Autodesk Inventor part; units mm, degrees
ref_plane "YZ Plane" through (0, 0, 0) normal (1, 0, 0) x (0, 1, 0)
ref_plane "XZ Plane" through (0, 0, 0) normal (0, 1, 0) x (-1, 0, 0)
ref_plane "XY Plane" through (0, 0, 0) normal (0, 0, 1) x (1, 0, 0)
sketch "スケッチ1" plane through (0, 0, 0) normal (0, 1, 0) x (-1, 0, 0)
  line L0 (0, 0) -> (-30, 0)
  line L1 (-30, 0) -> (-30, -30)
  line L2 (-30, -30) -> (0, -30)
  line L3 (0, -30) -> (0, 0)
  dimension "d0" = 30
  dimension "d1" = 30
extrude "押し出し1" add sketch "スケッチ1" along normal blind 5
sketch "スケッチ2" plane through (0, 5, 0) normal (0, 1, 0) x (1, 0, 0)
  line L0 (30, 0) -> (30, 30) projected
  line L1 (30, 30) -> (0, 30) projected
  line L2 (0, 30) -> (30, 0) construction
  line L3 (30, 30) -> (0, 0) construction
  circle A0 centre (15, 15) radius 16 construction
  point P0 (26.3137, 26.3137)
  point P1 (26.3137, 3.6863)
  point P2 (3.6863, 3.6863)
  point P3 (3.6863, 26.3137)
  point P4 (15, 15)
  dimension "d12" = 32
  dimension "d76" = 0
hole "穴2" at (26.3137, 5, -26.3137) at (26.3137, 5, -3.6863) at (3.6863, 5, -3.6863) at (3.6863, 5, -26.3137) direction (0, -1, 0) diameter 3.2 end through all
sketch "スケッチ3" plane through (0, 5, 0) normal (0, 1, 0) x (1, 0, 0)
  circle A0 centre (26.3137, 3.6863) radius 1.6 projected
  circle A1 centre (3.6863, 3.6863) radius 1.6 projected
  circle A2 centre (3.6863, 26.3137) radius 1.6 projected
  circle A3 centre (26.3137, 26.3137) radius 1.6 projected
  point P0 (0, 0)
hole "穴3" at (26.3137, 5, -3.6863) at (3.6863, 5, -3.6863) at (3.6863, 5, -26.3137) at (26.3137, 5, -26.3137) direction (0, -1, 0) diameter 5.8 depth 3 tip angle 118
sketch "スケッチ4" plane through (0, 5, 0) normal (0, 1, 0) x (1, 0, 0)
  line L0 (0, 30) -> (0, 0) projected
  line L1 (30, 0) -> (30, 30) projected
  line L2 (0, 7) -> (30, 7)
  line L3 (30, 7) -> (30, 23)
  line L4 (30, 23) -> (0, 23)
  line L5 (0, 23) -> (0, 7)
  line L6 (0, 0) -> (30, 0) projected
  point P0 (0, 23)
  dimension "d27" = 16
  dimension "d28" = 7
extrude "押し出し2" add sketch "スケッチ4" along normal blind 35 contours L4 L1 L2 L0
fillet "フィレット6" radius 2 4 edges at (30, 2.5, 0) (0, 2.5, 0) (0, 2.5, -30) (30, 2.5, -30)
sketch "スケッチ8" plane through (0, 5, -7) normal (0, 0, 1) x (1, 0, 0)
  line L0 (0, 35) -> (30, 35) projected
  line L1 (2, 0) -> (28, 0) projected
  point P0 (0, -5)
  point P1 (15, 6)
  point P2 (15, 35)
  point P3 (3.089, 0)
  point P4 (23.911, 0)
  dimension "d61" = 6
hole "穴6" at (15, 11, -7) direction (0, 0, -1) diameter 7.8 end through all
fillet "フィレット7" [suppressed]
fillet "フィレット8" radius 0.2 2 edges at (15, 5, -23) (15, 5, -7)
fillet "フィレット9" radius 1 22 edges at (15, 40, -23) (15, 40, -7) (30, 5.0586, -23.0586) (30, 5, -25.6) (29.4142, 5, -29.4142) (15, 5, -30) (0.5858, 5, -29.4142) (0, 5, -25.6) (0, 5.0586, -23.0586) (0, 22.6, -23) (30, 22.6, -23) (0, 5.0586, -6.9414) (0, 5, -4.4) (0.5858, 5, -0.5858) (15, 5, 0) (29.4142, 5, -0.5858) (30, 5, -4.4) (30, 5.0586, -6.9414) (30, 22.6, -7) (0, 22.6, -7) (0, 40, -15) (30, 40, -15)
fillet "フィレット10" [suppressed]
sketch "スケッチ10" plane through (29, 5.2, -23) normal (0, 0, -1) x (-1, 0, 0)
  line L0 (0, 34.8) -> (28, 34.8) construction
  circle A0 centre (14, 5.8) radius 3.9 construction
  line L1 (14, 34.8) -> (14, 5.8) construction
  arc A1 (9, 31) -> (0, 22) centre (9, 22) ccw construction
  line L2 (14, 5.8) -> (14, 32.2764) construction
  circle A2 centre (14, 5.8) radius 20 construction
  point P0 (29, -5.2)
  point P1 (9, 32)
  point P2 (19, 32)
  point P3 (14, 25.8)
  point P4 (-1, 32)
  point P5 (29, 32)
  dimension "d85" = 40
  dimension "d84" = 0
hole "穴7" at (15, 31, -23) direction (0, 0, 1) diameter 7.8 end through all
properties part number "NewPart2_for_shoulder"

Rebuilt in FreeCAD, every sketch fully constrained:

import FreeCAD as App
import Part
import Sketcher
from FreeCAD import Vector


def edges_at(feature, points):
    """Names of the edges that pass closest to the given points."""
    edges = feature.Shape.Edges
    near = lambda p: min(range(len(edges)), key=lambda i: edges[i].distToShape(Part.Vertex(*p))[0])
    return sorted({f"Edge{near(p) + 1}" for p in points})

doc = App.newDocument("Part")
body = doc.addObject("PartDesign::Body", "Body")

# Sketch on XZ plane
sketch1 = body.newObject("Sketcher::SketchObject", "Sketch")
sketch1.AttachmentSupport = (doc.getObject("XZ_Plane"), [""])
sketch1.MapMode = "FlatFace"
sketch1.addGeometry([
    Part.LineSegment(Vector(0, -30, 0), Vector(0, 0, 0)),
    Part.LineSegment(Vector(0, 0, 0), Vector(30, 0, 0)),
    Part.LineSegment(Vector(30, 0, 0), Vector(30, -30, 0)),
    Part.LineSegment(Vector(30, -30, 0), Vector(0, -30, 0)),
], False)
sketch1.addConstraint([
    Sketcher.Constraint("Coincident", 0, 2, 1, 1),
    Sketcher.Constraint("Coincident", 1, 2, 2, 1),
    Sketcher.Constraint("Coincident", 2, 2, 3, 1),
    Sketcher.Constraint("Coincident", 3, 2, 0, 1),
    Sketcher.Constraint("Vertical", 0),
    Sketcher.Constraint("Horizontal", 1),
    Sketcher.Constraint("Vertical", 2),
    Sketcher.Constraint("Horizontal", 3),
    Sketcher.Constraint("Coincident", 0, 2, -1, 1),
    Sketcher.Constraint("Equal", 3, 0),
    Sketcher.Constraint("DistanceX", 1, 1, 1, 2, 30.0),
])
pad1 = body.newObject("PartDesign::Pad", "Pad")
pad1.Profile = sketch1
pad1.Length = 5
pad1.Reversed = True

# Sketch on XZ plane
sketch2 = body.newObject("Sketcher::SketchObject", "Sketch001")
sketch2.AttachmentSupport = (doc.getObject("XZ_Plane"), [""])
sketch2.MapMode = "FlatFace"
sketch2.AttachmentOffset = App.Placement(Vector(0, 0, -5), App.Rotation())
sketch2.addGeometry([
    Part.Circle(Vector(26.3137, -26.3137, 0), Vector(0, 0, 1), 1.6),
    Part.Circle(Vector(26.3137, -3.6863, 0), Vector(0, 0, 1), 1.6),
    Part.Circle(Vector(3.6863, -3.6863, 0), Vector(0, 0, 1), 1.6),
    Part.Circle(Vector(3.6863, -26.3137, 0), Vector(0, 0, 1), 1.6),
], False)
sketch2.addConstraint([
    Sketcher.Constraint("Equal", 0, 1),
    Sketcher.Constraint("Equal", 1, 2),
    Sketcher.Constraint("Equal", 2, 3),
    Sketcher.Constraint("Horizontal", 1, 3, 2, 3),
    Sketcher.Constraint("Horizontal", 0, 3, 3, 3),
    Sketcher.Constraint("Vertical", 0, 3, 1, 3),
    Sketcher.Constraint("Vertical", 2, 3, 3, 3),
    Sketcher.Constraint("Diameter", 0, 3.2),
    Sketcher.Constraint("DistanceX", -1, 1, 0, 3, 26.3137),
    Sketcher.Constraint("DistanceY", 0, 3, -1, 1, 26.3137),
    Sketcher.Constraint("DistanceY", 1, 3, -1, 1, 3.6863),
    Sketcher.Constraint("DistanceX", -1, 1, 2, 3, 3.6863),
])
doc.recompute()
hole = body.newObject("PartDesign::Hole", "Hole")
hole.Profile = sketch2
hole.ThreadType = "None"
hole.Diameter = 3.2
hole.DepthType = "ThroughAll"
hole.Reversed = True

# Sketch on XZ plane
sketch3 = body.newObject("Sketcher::SketchObject", "Sketch002")
sketch3.AttachmentSupport = (doc.getObject("XZ_Plane"), [""])
sketch3.MapMode = "FlatFace"
sketch3.AttachmentOffset = App.Placement(Vector(0, 0, -5), App.Rotation())
sketch3.addGeometry([
    Part.Circle(Vector(26.3137, -3.6863, 0), Vector(0, 0, 1), 2.9),
    Part.Circle(Vector(3.6863, -3.6863, 0), Vector(0, 0, 1), 2.9),
    Part.Circle(Vector(3.6863, -26.3137, 0), Vector(0, 0, 1), 2.9),
    Part.Circle(Vector(26.3137, -26.3137, 0), Vector(0, 0, 1), 2.9),
], False)
sketch3.addConstraint([
    Sketcher.Constraint("Equal", 0, 1),
    Sketcher.Constraint("Equal", 1, 2),
    Sketcher.Constraint("Equal", 2, 3),
    Sketcher.Constraint("Horizontal", 0, 3, 1, 3),
    Sketcher.Constraint("Horizontal", 2, 3, 3, 3),
    Sketcher.Constraint("Vertical", 1, 3, 2, 3),
    Sketcher.Constraint("Vertical", 0, 3, 3, 3),
    Sketcher.Constraint("Diameter", 0, 5.8),
    Sketcher.Constraint("DistanceX", -1, 1, 0, 3, 26.3137),
    Sketcher.Constraint("DistanceY", 0, 3, -1, 1, 3.6863),
    Sketcher.Constraint("DistanceX", -1, 1, 1, 3, 3.6863),
    Sketcher.Constraint("DistanceY", 2, 3, -1, 1, 26.3137),
])
doc.recompute()
hole2 = body.newObject("PartDesign::Hole", "Hole001")
hole2.Profile = sketch3
hole2.ThreadType = "None"
hole2.Diameter = 5.8
hole2.DepthType = "Dimension"
hole2.Depth = 3
hole2.DrillPoint = "Angled"
hole2.DrillPointAngle = 118
hole2.Reversed = True

# Sketch on XZ plane
sketch4 = body.newObject("Sketcher::SketchObject", "Sketch003")
sketch4.AttachmentSupport = (doc.getObject("XZ_Plane"), [""])
sketch4.MapMode = "FlatFace"
sketch4.AttachmentOffset = App.Placement(Vector(0, 0, -5), App.Rotation())
sketch4.addGeometry([
    Part.LineSegment(Vector(30, -23, 0), Vector(0, -23, 0)),
    Part.LineSegment(Vector(0, -23, 0), Vector(0, -7, 0)),
    Part.LineSegment(Vector(0, -7, 0), Vector(30, -7, 0)),
    Part.LineSegment(Vector(30, -7, 0), Vector(30, -23, 0)),
], False)
sketch4.addConstraint([
    Sketcher.Constraint("Coincident", 0, 2, 1, 1),
    Sketcher.Constraint("Coincident", 1, 2, 2, 1),
    Sketcher.Constraint("Coincident", 2, 2, 3, 1),
    Sketcher.Constraint("Coincident", 3, 2, 0, 1),
    Sketcher.Constraint("Horizontal", 0),
    Sketcher.Constraint("Vertical", 1),
    Sketcher.Constraint("Horizontal", 2),
    Sketcher.Constraint("Vertical", 3),
    Sketcher.Constraint("PointOnObject", 0, 2, -2),
    Sketcher.Constraint("DistanceY", 1, 1, 1, 2, 16.0),
    Sketcher.Constraint("DistanceY", 1, 2, -1, 1, 7.0),
    Sketcher.Constraint("DistanceX", 0, 2, 0, 1, 30.0),
])
pad2 = body.newObject("PartDesign::Pad", "Pad001")
pad2.Profile = sketch4
pad2.Length = 35
pad2.Reversed = True
doc.recompute()

fillet = body.newObject("PartDesign::Fillet", "Fillet")
fillet.Base = (pad2, edges_at(pad2, [
    (30, 2.5, 0),
    (0, 2.5, 0),
    (0, 2.5, -30),
    (30, 2.5, -30),
]))
fillet.Radius = 2

# Sketch on XY plane
sketch5 = body.newObject("Sketcher::SketchObject", "Sketch004")
sketch5.AttachmentSupport = (doc.getObject("XY_Plane"), [""])
sketch5.MapMode = "FlatFace"
sketch5.AttachmentOffset = App.Placement(Vector(0, 0, -7), App.Rotation())
sketch5.addGeometry(Part.Circle(Vector(15, 11, 0), Vector(0, 0, 1), 3.9), False)
sketch5.addConstraint([
    Sketcher.Constraint("Diameter", 0, 7.8),
    Sketcher.Constraint("DistanceX", -1, 1, 0, 3, 15.0),
    Sketcher.Constraint("DistanceY", -1, 1, 0, 3, 11.0),
])
doc.recompute()
hole3 = body.newObject("PartDesign::Hole", "Hole002")
hole3.Profile = sketch5
hole3.ThreadType = "None"
hole3.Diameter = 7.8
hole3.DepthType = "ThroughAll"
doc.recompute()

fillet2 = body.newObject("PartDesign::Fillet", "Fillet001")
fillet2.Base = (hole3, edges_at(hole3, [(15, 5, -23), (15, 5, -7)]))
fillet2.Radius = 0.2
doc.recompute()

fillet3 = body.newObject("PartDesign::Fillet", "Fillet002")
fillet3.Base = (fillet2, edges_at(fillet2, [
    (15, 40, -23),
    (15, 40, -7),
    (30, 5.059, -23.059),
    (30, 5, -25.6),
    (29.414, 5, -29.414),
    (15, 5, -30),
    (0.586, 5, -29.414),
    (0, 5, -25.6),
    (0, 5.059, -23.059),
    (0, 22.6, -23),
    (30, 22.6, -23),
    (0, 5.059, -6.941),
    (0, 5, -4.4),
    (0.586, 5, -0.586),
    (15, 5, 0),
    (29.414, 5, -0.586),
    (30, 5, -4.4),
    (30, 5.059, -6.941),
    (30, 22.6, -7),
    (0, 22.6, -7),
    (0, 40, -15),
    (30, 40, -15),
]))
fillet3.Radius = 1

# Sketch on XY plane
sketch6 = body.newObject("Sketcher::SketchObject", "Sketch005")
sketch6.AttachmentSupport = (doc.getObject("XY_Plane"), [""])
sketch6.MapMode = "FlatFace"
sketch6.AttachmentOffset = App.Placement(Vector(0, 0, -23), App.Rotation())
sketch6.addGeometry(Part.Circle(Vector(15, 31, 0), Vector(0, 0, 1), 3.9), False)
sketch6.addConstraint([
    Sketcher.Constraint("Diameter", 0, 7.8),
    Sketcher.Constraint("DistanceX", -1, 1, 0, 3, 15.0),
    Sketcher.Constraint("DistanceY", -1, 1, 0, 3, 31.0),
])
doc.recompute()
hole4 = body.newObject("PartDesign::Hole", "Hole003")
hole4.Profile = sketch6
hole4.ThreadType = "None"
hole4.Diameter = 7.8
hole4.DepthType = "ThroughAll"
hole4.Reversed = True

doc.recompute()
